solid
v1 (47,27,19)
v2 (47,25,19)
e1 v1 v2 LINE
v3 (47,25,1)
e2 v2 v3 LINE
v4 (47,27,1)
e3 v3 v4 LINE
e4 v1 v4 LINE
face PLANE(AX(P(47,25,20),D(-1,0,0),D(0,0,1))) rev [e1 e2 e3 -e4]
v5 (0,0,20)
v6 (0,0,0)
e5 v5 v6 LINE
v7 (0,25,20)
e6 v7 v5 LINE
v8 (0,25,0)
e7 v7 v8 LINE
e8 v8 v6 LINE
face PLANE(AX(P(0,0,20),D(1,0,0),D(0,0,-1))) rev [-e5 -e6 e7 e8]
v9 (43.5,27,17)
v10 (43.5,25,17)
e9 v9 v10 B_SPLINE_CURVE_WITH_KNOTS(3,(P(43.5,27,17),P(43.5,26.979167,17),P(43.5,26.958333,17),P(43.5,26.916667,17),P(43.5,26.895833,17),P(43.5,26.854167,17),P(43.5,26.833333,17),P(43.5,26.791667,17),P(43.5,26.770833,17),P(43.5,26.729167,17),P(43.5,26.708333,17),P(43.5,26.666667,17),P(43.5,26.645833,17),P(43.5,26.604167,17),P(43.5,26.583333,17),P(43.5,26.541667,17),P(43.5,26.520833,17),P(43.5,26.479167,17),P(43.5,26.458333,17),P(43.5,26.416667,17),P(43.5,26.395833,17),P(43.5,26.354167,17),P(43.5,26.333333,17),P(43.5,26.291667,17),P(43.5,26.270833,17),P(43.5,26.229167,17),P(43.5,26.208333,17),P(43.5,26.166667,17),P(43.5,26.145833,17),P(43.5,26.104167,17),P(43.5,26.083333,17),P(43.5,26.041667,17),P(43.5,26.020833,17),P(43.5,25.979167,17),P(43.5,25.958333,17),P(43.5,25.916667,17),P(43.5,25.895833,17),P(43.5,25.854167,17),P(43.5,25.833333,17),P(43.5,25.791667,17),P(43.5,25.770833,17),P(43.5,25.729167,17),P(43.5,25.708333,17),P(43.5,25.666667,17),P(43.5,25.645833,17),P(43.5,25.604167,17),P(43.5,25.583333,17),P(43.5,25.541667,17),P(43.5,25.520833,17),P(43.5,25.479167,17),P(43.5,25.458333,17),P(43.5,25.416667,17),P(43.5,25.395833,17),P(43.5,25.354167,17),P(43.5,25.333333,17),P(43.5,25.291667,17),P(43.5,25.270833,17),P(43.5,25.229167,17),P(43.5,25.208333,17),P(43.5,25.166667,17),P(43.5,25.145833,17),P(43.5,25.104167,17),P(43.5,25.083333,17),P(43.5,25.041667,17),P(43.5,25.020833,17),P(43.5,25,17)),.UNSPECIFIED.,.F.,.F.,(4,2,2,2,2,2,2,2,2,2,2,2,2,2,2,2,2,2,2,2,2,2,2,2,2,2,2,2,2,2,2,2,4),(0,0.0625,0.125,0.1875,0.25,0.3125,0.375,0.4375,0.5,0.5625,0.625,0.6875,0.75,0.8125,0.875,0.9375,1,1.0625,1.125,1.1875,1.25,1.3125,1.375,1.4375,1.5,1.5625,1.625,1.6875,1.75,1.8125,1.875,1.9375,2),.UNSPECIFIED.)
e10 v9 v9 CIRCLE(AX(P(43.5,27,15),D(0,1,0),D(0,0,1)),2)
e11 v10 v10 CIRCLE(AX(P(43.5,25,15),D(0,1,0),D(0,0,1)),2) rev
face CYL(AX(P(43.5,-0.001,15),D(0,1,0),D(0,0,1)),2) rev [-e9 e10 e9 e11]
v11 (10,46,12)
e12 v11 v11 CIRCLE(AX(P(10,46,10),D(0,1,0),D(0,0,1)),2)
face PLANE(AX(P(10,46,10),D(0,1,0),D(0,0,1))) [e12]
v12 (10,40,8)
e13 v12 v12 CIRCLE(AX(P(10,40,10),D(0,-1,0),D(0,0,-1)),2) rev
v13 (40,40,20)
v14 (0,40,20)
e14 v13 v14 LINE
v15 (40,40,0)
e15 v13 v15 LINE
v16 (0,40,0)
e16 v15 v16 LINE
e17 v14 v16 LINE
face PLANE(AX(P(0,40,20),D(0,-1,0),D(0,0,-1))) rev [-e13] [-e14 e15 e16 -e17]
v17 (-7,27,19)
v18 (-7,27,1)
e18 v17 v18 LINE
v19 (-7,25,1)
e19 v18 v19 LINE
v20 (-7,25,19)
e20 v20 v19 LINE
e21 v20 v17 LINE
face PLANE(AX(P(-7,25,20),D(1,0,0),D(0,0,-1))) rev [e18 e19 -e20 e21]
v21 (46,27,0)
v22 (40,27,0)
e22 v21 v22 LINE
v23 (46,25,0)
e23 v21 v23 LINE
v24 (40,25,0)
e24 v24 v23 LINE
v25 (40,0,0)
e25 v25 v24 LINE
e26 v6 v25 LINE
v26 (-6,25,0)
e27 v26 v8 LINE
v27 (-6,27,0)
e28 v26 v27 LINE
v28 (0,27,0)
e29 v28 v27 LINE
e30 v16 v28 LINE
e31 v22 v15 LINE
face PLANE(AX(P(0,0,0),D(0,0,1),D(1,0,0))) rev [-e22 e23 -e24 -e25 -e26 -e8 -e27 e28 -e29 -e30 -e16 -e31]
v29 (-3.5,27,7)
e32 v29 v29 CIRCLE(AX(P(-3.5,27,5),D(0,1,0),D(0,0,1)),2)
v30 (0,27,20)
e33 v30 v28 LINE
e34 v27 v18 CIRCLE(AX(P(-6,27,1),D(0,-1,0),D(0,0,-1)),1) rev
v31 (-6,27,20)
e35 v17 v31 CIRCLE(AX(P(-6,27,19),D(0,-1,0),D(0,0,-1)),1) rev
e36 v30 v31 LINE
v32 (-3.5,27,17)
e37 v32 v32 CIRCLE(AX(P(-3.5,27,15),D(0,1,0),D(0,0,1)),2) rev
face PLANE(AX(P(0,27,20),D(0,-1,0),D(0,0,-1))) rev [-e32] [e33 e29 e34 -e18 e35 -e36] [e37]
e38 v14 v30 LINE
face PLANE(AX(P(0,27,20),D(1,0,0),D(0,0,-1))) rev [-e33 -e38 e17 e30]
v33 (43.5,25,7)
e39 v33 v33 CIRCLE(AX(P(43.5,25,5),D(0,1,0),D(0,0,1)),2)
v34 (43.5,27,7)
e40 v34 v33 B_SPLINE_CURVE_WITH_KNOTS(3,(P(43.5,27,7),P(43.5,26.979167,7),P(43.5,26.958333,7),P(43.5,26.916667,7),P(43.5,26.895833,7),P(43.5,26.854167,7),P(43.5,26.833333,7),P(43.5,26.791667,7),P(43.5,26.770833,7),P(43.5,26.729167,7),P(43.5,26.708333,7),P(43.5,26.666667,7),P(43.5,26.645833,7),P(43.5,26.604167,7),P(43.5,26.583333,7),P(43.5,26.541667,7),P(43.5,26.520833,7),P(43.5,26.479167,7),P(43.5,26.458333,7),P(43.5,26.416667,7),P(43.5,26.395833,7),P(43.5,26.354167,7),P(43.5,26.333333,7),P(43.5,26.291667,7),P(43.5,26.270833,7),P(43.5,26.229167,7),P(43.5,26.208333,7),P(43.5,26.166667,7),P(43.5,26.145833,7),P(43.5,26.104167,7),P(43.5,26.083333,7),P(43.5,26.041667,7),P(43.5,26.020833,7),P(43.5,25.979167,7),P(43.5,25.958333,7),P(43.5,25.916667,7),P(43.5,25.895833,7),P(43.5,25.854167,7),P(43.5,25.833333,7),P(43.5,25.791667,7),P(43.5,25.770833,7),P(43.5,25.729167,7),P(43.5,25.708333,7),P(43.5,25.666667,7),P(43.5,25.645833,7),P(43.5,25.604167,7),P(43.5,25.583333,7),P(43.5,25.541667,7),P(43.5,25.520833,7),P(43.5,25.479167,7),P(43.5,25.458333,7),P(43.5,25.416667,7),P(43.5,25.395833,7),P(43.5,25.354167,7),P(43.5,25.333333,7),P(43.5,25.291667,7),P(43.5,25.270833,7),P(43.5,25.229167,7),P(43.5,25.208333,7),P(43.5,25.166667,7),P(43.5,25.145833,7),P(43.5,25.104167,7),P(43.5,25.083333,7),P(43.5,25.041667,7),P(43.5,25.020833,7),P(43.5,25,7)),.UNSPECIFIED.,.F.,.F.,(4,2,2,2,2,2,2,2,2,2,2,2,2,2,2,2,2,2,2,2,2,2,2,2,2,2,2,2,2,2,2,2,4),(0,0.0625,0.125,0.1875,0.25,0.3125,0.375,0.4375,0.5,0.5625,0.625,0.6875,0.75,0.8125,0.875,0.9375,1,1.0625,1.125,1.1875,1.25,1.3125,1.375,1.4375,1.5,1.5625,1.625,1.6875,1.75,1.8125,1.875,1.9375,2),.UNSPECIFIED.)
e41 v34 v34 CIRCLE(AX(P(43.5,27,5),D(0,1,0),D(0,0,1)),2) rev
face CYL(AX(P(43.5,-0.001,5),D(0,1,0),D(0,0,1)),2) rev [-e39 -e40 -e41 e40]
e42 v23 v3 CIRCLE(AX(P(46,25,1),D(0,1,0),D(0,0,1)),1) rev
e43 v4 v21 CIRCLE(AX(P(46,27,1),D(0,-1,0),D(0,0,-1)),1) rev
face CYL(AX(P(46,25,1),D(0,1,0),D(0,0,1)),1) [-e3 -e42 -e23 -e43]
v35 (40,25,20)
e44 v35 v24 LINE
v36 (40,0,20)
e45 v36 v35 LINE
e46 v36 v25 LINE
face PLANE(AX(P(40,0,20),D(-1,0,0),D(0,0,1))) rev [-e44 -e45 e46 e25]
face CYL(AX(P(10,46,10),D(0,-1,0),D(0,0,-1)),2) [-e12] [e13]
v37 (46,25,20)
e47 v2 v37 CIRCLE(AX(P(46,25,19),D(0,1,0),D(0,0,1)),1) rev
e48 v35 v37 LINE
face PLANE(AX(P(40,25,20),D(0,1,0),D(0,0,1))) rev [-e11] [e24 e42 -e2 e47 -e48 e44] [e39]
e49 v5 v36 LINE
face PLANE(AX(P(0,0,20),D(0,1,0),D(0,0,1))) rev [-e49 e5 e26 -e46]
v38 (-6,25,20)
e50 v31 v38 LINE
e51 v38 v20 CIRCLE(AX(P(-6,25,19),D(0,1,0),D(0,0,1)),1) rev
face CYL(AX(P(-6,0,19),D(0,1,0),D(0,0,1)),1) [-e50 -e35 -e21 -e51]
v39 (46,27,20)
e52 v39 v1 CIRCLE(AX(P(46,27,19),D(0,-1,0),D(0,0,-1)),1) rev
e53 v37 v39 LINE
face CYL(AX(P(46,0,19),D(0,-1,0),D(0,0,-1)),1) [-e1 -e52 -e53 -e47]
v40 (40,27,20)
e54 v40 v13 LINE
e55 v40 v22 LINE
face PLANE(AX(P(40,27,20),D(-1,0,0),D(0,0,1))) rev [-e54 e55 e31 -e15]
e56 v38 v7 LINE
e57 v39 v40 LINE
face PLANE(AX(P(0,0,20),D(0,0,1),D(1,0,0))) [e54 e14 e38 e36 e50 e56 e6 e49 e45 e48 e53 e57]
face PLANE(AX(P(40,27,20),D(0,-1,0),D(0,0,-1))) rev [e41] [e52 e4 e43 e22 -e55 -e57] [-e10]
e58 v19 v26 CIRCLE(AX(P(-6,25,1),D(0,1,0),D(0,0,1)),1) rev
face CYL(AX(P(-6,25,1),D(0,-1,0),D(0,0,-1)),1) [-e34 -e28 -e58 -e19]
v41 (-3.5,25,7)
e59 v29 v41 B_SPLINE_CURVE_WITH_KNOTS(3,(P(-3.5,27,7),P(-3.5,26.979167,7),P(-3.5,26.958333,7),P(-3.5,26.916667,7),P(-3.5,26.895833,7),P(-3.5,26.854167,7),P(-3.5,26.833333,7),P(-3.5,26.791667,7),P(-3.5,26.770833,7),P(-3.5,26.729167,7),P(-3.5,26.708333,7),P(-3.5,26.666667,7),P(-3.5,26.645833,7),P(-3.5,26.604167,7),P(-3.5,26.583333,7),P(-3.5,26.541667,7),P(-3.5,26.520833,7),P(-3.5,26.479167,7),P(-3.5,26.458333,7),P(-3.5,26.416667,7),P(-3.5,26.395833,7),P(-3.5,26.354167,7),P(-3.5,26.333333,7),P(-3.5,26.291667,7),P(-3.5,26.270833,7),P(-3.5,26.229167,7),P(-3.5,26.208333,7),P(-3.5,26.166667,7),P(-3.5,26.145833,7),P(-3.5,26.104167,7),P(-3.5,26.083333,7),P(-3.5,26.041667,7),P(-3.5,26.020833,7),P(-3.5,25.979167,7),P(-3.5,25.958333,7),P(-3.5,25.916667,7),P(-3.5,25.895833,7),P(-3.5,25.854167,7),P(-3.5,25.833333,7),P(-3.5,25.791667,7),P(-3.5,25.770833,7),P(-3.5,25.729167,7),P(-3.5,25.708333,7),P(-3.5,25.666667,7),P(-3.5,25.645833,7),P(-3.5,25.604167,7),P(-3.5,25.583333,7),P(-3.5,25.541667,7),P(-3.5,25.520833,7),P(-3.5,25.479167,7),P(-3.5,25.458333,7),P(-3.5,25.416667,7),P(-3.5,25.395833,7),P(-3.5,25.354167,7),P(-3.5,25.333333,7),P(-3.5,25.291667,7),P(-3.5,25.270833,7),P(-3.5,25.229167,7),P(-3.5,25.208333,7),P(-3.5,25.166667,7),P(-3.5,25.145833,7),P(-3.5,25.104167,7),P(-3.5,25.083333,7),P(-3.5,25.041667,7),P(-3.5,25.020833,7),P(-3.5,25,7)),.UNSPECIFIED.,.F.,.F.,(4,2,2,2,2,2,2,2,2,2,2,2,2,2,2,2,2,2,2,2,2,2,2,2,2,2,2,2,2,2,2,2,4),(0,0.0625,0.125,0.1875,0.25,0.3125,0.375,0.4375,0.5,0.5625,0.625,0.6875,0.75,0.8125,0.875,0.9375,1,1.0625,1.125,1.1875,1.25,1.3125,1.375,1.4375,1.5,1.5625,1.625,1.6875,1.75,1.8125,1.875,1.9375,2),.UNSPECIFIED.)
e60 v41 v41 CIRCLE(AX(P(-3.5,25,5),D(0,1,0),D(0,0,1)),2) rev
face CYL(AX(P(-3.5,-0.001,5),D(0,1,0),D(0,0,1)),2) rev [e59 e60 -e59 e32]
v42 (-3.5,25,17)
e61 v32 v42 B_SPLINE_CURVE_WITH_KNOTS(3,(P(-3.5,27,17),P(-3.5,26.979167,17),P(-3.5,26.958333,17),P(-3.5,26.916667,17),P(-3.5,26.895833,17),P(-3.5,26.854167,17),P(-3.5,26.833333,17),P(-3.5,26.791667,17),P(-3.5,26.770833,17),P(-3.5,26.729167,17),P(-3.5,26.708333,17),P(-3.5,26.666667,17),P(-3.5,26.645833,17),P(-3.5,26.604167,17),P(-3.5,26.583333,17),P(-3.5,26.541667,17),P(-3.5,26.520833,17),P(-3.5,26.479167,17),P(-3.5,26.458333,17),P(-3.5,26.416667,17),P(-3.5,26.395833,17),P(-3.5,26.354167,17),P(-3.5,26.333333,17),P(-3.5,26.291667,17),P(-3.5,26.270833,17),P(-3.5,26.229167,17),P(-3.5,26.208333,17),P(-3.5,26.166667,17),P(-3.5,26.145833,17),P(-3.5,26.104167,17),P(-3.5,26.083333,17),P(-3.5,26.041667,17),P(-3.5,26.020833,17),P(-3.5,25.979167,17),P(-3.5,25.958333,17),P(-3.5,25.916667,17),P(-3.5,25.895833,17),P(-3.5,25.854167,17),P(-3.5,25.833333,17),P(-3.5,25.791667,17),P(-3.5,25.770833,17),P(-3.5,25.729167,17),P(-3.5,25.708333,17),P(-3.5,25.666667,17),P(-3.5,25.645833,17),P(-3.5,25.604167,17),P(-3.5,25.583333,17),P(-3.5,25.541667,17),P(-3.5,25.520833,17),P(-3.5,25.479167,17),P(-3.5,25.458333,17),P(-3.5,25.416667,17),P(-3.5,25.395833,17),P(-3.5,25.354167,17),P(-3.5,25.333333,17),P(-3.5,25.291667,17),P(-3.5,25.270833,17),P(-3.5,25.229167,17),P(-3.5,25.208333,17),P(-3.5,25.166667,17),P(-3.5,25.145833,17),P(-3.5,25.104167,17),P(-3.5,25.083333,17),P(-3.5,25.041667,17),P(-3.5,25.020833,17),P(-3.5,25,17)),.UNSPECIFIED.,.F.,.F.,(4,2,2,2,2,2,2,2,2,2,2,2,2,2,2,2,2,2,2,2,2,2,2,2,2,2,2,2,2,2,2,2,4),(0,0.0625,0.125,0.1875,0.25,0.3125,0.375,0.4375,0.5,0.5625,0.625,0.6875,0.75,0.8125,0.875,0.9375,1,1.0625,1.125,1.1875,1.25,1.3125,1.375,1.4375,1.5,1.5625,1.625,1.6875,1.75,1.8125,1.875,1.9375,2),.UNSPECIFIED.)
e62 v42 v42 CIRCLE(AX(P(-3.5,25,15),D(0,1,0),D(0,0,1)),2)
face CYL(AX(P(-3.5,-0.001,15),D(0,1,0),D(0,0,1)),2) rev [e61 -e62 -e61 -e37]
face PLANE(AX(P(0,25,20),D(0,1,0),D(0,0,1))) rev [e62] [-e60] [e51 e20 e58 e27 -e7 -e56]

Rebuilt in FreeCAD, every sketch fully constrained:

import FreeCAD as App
import Part
import Sketcher
Q = App.Units.Quantity


def edges_at(feature, points):
    """Names of the edges that pass closest to the given points."""
    edges = feature.Shape.Edges
    near = lambda p: min(range(len(edges)), key=lambda i: edges[i].distToShape(Part.Vertex(*p))[0])
    return sorted({f"Edge{near(p) + 1}" for p in points})


def add_polygon(sketch, points):
    """Adds a closed chain of lines whose ends are joined by coincident constraints."""
    first, n = sketch.GeometryCount, len(points)
    for a, b in zip(points, points[1:] + points[:1]):
        sketch.addGeometry(Part.LineSegment(App.Vector(*a, 0), App.Vector(*b, 0)), False)
    for i in range(n):
        sketch.addConstraint(Sketcher.Constraint("Coincident", first + i, 2, first + (i + 1) % n, 1))

doc = App.newDocument("Part")
params = doc.addObject("Spreadsheet::Sheet", "Params")
for row, (alias, value) in enumerate([
    ("sketch1_width", "40 mm"),
    ("sketch1_width2", "7 mm"),
    ("sketch1_height", "25 mm"),
    ("sketch1_height2", "2 mm"),
    ("sketch1_height3", "13 mm"),
    ("pad1_length", "20 mm"),
    ("fillet_radius", "1 mm"),
    ("sketch2_diameter", "4 mm"),
    ("sketch3_diameter", "4 mm"),
    ("sketch4_diameter", "4 mm"),
    ("sketch5_diameter", "4 mm"),
    ("sketch6_diameter", "4 mm"),
    ("pad2_length", "6 mm"),
], start=1):
    params.set(f"A{row}", alias)
    params.set(f"B{row}", "=" + value)
    params.setAlias(f"B{row}", alias)

body = doc.addObject("PartDesign::Body", "Body")

sketch1 = body.newObject("Sketcher::SketchObject", "Sketch")
sketch1.AttachmentSupport = (doc.getObject("XY_Plane"), [""])
sketch1.MapMode = "FlatFace"
add_polygon(sketch1, [(0, 0), (40, 0), (40, 25), (47, 25), (47, 27), (40, 27), (40, 40), (0, 40), (0, 27), (-7, 27), (-7, 25), (0, 25)])
sketch1.addConstraint([
    Sketcher.Constraint("Horizontal", 0),
    Sketcher.Constraint("Vertical", 1),
    Sketcher.Constraint("Horizontal", 2),
    Sketcher.Constraint("Vertical", 3),
    Sketcher.Constraint("Horizontal", 4),
    Sketcher.Constraint("Vertical", 5),
    Sketcher.Constraint("Horizontal", 6),
    Sketcher.Constraint("Vertical", 7),
    Sketcher.Constraint("Horizontal", 8),
    Sketcher.Constraint("Vertical", 9),
    Sketcher.Constraint("Horizontal", 10),
    Sketcher.Constraint("Vertical", 11),
    Sketcher.Constraint("Coincident", 11, 2, -1, 1),
    Sketcher.Constraint("PointOnObject", 6, 2, -2),
    Sketcher.Constraint("Horizontal", 4, 2, 7, 2),
    Sketcher.Constraint("Horizontal", 2, 2, 9, 2),
    Sketcher.Constraint("Vertical", 1, 2, 4, 2),
    Sketcher.Constraint("Equal", 4, 8),
    Sketcher.Constraint("DistanceX", 0, 1, 0, 2, Q("40 mm")),
    Sketcher.Constraint("DistanceX", 2, 1, 2, 2, Q("7 mm")),
    Sketcher.Constraint("DistanceY", 1, 1, 1, 2, Q("25 mm")),
    Sketcher.Constraint("DistanceY", 3, 1, 3, 2, Q("2 mm")),
    Sketcher.Constraint("DistanceY", 5, 1, 5, 2, Q("13 mm")),
])
sketch1.setExpression("Constraints[30]", "Params.sketch1_width")
sketch1.setExpression("Constraints[31]", "Params.sketch1_width2")
sketch1.setExpression("Constraints[32]", "Params.sketch1_height")
sketch1.setExpression("Constraints[33]", "Params.sketch1_height2")
sketch1.setExpression("Constraints[34]", "Params.sketch1_height3")
pad1 = body.newObject("PartDesign::Pad", "Pad")
pad1.Profile = sketch1
pad1.setExpression("Length", "Params.pad1_length")
doc.recompute()

fillet = body.newObject("PartDesign::Fillet", "Fillet")
fillet.Base = (pad1, edges_at(pad1, [
    (-7, 26, 0),
    (47, 26, 0),
    (47, 26, 20),
    (-7, 26, 20),
]))
fillet.setExpression("Radius", "Params.fillet_radius")

sketch2 = body.newObject("Sketcher::SketchObject", "Sketch001")
sketch2.AttachmentSupport = (doc.getObject("XZ_Plane"), [""])
sketch2.MapMode = "FlatFace"
sketch2.AttachmentOffset = App.Placement(App.Vector(0, 0, -27), App.Rotation())
sketch2.addGeometry(Part.Circle(App.Vector(-3.5, 5, 0), App.Vector(0, 0, 1), 2), False)
sketch2.addConstraint([
    Sketcher.Constraint("Diameter", 0, Q("4 mm")),
    Sketcher.Constraint("DistanceY", -1, 1, 0, 3, Q("5 mm")),
    Sketcher.Constraint("DistanceX", 0, 3, -1, 1, Q("3.5 mm")),
])
sketch2.setExpression("Constraints[0]", "Params.sketch2_diameter")
pocket1 = body.newObject("PartDesign::Pocket", "Pocket")
pocket1.Profile = sketch2
pocket1.Type = "UpToFirst"
pocket1.Reversed = True

sketch3 = body.newObject("Sketcher::SketchObject", "Sketch002")
sketch3.AttachmentSupport = (doc.getObject("XZ_Plane"), [""])
sketch3.MapMode = "FlatFace"
sketch3.AttachmentOffset = App.Placement(App.Vector(0, 0, -27), App.Rotation())
sketch3.addGeometry(Part.Circle(App.Vector(-3.5, 15, 0), App.Vector(0, 0, 1), 2), False)
sketch3.addConstraint([
    Sketcher.Constraint("Diameter", 0, Q("4 mm")),
    Sketcher.Constraint("DistanceY", -1, 1, 0, 3, Q("15 mm")),
    Sketcher.Constraint("DistanceX", 0, 3, -1, 1, Q("3.5 mm")),
])
sketch3.setExpression("Constraints[0]", "Params.sketch3_diameter")
pocket2 = body.newObject("PartDesign::Pocket", "Pocket001")
pocket2.Profile = sketch3
pocket2.Type = "UpToFirst"
pocket2.Reversed = True

sketch4 = body.newObject("Sketcher::SketchObject", "Sketch003")
sketch4.AttachmentSupport = (doc.getObject("XZ_Plane"), [""])
sketch4.MapMode = "FlatFace"
sketch4.AttachmentOffset = App.Placement(App.Vector(0, 0, -27), App.Rotation())
sketch4.addGeometry(Part.Circle(App.Vector(43.5, 5, 0), App.Vector(0, 0, 1), 2), False)
sketch4.addConstraint([
    Sketcher.Constraint("Diameter", 0, Q("4 mm")),
    Sketcher.Constraint("DistanceY", -1, 1, 0, 3, Q("5 mm")),
    Sketcher.Constraint("DistanceX", -1, 1, 0, 3, Q("43.5 mm")),
])
sketch4.setExpression("Constraints[0]", "Params.sketch4_diameter")
pocket3 = body.newObject("PartDesign::Pocket", "Pocket002")
pocket3.Profile = sketch4
pocket3.Type = "UpToFirst"
pocket3.Reversed = True

sketch5 = body.newObject("Sketcher::SketchObject", "Sketch004")
sketch5.AttachmentSupport = (doc.getObject("XZ_Plane"), [""])
sketch5.MapMode = "FlatFace"
sketch5.AttachmentOffset = App.Placement(App.Vector(0, 0, -27), App.Rotation())
sketch5.addGeometry(Part.Circle(App.Vector(43.5, 15, 0), App.Vector(0, 0, 1), 2), False)
sketch5.addConstraint([
    Sketcher.Constraint("Diameter", 0, Q("4 mm")),
    Sketcher.Constraint("DistanceY", -1, 1, 0, 3, Q("15 mm")),
    Sketcher.Constraint("DistanceX", -1, 1, 0, 3, Q("43.5 mm")),
])
sketch5.setExpression("Constraints[0]", "Params.sketch5_diameter")
pocket4 = body.newObject("PartDesign::Pocket", "Pocket003")
pocket4.Profile = sketch5
pocket4.Type = "UpToFirst"
pocket4.Reversed = True

sketch6 = body.newObject("Sketcher::SketchObject", "Sketch005")
sketch6.AttachmentSupport = (doc.getObject("XZ_Plane"), [""])
sketch6.MapMode = "FlatFace"
sketch6.AttachmentOffset = App.Placement(App.Vector(0, 0, -40), App.Rotation())
sketch6.addGeometry(Part.Circle(App.Vector(10, 10, 0), App.Vector(0, 0, 1), 2), False)
sketch6.addConstraint([
    Sketcher.Constraint("Diameter", 0, Q("4 mm")),
    Sketcher.Constraint("DistanceX", -1, 1, 0, 3, Q("10 mm")),
    Sketcher.Constraint("DistanceY", -1, 1, 0, 3, Q("10 mm")),
])
sketch6.setExpression("Constraints[0]", "Params.sketch6_diameter")
pad2 = body.newObject("PartDesign::Pad", "Pad001")
pad2.Profile = sketch6
pad2.setExpression("Length", "Params.pad2_length")
pad2.Reversed = True

doc.recompute()
